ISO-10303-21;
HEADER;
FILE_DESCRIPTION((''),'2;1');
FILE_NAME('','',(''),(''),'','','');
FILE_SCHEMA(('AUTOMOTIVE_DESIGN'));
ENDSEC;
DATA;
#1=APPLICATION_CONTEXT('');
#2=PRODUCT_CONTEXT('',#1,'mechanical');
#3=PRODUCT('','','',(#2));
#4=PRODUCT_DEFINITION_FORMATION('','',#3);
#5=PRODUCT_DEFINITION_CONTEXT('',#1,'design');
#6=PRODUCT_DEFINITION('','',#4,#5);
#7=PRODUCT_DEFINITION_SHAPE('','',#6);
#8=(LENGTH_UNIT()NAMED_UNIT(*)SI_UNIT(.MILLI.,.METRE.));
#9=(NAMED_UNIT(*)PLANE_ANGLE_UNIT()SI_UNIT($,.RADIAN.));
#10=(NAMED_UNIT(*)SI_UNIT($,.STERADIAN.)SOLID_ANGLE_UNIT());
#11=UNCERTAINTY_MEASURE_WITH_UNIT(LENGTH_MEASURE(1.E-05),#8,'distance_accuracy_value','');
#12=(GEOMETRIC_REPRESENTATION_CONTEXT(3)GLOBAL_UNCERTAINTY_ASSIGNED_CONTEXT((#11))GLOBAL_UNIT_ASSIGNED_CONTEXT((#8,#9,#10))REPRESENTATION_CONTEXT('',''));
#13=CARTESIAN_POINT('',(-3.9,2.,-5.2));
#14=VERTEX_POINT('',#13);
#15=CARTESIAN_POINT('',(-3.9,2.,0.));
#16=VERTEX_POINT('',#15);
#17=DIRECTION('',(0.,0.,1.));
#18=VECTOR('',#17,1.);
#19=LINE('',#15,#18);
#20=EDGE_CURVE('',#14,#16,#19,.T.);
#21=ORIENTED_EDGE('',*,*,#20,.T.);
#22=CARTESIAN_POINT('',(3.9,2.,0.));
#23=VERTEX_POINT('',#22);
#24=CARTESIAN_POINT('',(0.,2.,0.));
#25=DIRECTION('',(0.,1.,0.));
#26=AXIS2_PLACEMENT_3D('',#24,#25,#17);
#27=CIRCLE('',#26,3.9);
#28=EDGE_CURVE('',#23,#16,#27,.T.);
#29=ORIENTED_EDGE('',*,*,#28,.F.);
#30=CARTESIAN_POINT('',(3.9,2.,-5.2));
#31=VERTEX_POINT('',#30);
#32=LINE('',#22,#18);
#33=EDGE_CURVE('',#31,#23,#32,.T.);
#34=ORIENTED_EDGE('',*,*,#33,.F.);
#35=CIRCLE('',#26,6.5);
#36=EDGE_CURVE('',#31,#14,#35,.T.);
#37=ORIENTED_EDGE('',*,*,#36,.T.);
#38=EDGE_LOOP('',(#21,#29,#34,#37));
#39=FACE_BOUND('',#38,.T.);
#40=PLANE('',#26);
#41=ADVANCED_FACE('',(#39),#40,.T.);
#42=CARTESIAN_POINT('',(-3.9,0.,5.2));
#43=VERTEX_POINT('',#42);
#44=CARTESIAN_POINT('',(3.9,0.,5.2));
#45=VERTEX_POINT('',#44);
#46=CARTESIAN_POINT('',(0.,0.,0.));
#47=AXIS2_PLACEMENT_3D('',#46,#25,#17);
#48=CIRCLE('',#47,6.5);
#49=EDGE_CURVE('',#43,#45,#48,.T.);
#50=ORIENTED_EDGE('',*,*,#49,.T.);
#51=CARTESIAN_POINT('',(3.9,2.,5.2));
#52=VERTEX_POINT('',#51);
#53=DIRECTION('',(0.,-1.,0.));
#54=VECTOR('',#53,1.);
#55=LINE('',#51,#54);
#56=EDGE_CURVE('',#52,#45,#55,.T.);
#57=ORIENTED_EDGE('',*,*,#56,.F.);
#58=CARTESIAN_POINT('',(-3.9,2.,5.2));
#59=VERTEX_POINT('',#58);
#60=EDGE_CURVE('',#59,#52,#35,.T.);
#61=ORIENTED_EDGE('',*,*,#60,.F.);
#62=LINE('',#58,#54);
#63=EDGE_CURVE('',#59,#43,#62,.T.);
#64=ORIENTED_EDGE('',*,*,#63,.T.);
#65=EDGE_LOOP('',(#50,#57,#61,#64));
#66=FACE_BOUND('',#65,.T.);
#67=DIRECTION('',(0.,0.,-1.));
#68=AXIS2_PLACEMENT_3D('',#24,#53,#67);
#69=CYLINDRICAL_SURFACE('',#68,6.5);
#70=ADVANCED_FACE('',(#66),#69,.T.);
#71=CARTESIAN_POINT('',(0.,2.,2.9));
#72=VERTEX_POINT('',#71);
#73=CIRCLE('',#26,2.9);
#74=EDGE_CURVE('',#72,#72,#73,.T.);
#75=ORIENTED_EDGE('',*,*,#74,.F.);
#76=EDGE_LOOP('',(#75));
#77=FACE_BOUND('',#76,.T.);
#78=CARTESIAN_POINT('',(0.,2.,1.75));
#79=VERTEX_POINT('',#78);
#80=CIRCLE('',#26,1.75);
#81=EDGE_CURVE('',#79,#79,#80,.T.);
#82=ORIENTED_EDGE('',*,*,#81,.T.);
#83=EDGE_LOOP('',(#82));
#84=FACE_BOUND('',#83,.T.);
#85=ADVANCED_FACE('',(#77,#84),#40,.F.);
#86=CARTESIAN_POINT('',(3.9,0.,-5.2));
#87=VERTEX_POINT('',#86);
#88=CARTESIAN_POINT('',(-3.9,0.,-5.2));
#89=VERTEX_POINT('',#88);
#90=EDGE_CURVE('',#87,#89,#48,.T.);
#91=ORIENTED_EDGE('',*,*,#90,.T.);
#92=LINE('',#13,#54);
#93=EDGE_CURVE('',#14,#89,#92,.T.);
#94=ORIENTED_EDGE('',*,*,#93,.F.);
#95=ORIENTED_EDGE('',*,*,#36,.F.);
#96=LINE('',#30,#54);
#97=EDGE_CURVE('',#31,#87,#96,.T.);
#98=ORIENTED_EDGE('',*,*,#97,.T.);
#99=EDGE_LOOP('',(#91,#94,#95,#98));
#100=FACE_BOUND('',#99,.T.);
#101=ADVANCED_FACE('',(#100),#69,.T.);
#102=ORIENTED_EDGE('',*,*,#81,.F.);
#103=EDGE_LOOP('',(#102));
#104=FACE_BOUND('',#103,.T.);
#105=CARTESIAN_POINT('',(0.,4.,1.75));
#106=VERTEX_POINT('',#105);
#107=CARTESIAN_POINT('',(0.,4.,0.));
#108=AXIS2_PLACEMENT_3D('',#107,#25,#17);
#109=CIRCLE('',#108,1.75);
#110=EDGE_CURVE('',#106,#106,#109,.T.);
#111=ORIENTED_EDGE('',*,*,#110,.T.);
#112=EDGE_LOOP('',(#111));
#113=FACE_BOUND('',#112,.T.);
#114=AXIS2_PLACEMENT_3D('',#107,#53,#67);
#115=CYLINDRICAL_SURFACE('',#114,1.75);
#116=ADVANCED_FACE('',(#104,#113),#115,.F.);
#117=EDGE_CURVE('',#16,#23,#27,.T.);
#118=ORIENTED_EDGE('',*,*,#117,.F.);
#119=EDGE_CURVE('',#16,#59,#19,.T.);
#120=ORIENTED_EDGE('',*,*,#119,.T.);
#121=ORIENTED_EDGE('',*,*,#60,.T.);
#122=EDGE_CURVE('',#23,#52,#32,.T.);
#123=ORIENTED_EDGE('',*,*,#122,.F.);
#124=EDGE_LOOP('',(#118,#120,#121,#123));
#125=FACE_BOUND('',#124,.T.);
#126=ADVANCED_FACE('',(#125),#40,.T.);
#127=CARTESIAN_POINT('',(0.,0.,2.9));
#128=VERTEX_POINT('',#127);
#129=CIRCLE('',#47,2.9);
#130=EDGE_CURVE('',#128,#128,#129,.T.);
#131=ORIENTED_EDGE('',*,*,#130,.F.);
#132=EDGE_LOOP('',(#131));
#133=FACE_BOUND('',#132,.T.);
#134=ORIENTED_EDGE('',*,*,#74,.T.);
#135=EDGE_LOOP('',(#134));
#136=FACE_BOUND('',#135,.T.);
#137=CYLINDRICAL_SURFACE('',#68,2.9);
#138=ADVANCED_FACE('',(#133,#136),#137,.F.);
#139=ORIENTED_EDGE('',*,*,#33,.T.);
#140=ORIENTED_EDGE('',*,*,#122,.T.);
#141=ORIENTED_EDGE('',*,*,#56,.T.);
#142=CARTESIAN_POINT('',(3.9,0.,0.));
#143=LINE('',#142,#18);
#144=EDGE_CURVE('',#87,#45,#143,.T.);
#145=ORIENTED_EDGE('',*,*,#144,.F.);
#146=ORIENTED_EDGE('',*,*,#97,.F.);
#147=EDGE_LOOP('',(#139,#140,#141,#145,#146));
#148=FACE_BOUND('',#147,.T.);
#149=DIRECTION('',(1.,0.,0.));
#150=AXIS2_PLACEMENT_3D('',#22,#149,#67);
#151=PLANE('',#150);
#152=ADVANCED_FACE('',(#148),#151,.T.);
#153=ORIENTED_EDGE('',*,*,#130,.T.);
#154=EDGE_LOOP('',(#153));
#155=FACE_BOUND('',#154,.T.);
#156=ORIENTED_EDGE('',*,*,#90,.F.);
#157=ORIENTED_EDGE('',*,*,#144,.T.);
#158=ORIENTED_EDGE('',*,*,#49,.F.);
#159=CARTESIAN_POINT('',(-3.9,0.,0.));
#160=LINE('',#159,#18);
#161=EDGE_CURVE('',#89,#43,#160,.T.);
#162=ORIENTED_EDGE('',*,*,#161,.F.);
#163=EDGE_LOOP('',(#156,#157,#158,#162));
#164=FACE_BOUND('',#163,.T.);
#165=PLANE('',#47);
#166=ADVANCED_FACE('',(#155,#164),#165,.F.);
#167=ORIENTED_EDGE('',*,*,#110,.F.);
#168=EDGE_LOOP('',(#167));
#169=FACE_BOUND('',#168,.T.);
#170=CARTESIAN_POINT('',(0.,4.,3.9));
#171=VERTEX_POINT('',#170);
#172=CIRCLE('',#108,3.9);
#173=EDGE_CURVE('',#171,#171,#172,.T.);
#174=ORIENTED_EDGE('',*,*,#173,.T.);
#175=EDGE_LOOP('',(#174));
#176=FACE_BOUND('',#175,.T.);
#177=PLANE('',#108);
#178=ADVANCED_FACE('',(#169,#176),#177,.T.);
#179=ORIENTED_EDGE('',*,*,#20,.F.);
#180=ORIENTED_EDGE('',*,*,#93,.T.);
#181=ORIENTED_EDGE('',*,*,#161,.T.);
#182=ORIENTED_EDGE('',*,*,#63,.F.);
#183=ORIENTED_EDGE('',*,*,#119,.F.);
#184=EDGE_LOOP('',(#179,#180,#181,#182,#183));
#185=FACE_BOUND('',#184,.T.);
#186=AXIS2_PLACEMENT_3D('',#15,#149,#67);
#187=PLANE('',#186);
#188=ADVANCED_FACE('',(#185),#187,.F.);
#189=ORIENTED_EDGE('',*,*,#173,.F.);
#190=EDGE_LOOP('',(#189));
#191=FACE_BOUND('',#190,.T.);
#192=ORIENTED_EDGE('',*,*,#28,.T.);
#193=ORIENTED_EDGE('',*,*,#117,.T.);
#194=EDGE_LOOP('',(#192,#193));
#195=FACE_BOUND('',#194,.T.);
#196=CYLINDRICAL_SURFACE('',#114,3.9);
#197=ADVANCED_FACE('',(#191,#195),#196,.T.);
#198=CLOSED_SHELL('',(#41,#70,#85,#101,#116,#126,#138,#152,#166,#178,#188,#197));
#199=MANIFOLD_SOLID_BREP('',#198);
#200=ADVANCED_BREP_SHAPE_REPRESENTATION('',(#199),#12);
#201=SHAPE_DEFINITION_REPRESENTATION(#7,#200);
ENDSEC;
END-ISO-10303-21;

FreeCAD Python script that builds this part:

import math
import FreeCAD as App
import Part
import Sketcher

V = App.Vector

doc = App.newDocument("Part")
body = doc.addObject("PartDesign::Body", "Body")

sketch1 = body.newObject("Sketcher::SketchObject", "Sketch")
sketch1.AttachmentSupport = (doc.getObject("XZ_Plane"), [""])
sketch1.MapMode = "FlatFace"
sketch1.addGeometry(Part.ArcOfCircle(Part.Circle(V(0, 0, 0), V(0, 0, 1), 6.5), math.radians(-127), math.radians(-53)), False)
sketch1.addGeometry(Part.LineSegment(V(-3.9, -5.2, 0), V(-3.9, 5.2, 0)), False)
sketch1.addGeometry(Part.ArcOfCircle(Part.Circle(V(0, 0, 0), V(0, 0, 1), 6.5), math.radians(53), math.radians(127)), False)
sketch1.addGeometry(Part.LineSegment(V(3.9, 5.2, 0), V(3.9, -5.2, 0)), False)
sketch1.addGeometry(Part.Circle(V(0, 0, 0), V(0, 0, 1), 2.9), False)
sketch1.addConstraint(Sketcher.Constraint("Coincident", 0, 1, 1, 1))
sketch1.addConstraint(Sketcher.Constraint("Coincident", 1, 2, 2, 2))
sketch1.addConstraint(Sketcher.Constraint("Coincident", 2, 1, 3, 1))
sketch1.addConstraint(Sketcher.Constraint("Coincident", 3, 2, 0, 2))
sketch1.addConstraint(Sketcher.Constraint("Vertical", 1))
sketch1.addConstraint(Sketcher.Constraint("Vertical", 3))
sketch1.addConstraint(Sketcher.Constraint("Coincident", 0, 3, -1, 1))
sketch1.addConstraint(Sketcher.Constraint("Coincident", 2, 3, -1, 1))
sketch1.addConstraint(Sketcher.Constraint("Coincident", 4, 3, -1, 1))
sketch1.addConstraint(Sketcher.Constraint("Equal", 0, 2))
sketch1.addConstraint(Sketcher.Constraint("Horizontal", 1, 2, 2, 1))
sketch1.addConstraint(Sketcher.Constraint("Diameter", 4, 5.8))
sketch1.addConstraint(Sketcher.Constraint("Radius", 0, 6.5))
sketch1.addConstraint(Sketcher.Constraint("DistanceY", 1, 1, 1, 2, 10.4))
pad1 = body.newObject("PartDesign::Pad", "Pad")
pad1.Profile = sketch1
pad1.Length = 2
pad1.Reversed = True

sketch2 = body.newObject("Sketcher::SketchObject", "Sketch001")
sketch2.AttachmentSupport = (doc.getObject("XZ_Plane"), [""])
sketch2.MapMode = "FlatFace"
sketch2.AttachmentOffset = App.Placement(V(0, 0, -2), App.Rotation())
sketch2.addGeometry(Part.Circle(V(0, 0, 0), V(0, 0, 1), 3.9), False)
sketch2.addGeometry(Part.Circle(V(0, 0, 0), V(0, 0, 1), 1.8), False)
sketch2.addConstraint(Sketcher.Constraint("Coincident", 0, 3, -1, 1))
sketch2.addConstraint(Sketcher.Constraint("Coincident", 1, 3, -1, 1))
sketch2.addConstraint(Sketcher.Constraint("Diameter", 0, 7.8))
sketch2.addConstraint(Sketcher.Constraint("Diameter", 1, 3.5))
pad2 = body.newObject("PartDesign::Pad", "Pad001")
pad2.Profile = sketch2
pad2.Length = 2
pad2.Reversed = True

doc.recompute()
